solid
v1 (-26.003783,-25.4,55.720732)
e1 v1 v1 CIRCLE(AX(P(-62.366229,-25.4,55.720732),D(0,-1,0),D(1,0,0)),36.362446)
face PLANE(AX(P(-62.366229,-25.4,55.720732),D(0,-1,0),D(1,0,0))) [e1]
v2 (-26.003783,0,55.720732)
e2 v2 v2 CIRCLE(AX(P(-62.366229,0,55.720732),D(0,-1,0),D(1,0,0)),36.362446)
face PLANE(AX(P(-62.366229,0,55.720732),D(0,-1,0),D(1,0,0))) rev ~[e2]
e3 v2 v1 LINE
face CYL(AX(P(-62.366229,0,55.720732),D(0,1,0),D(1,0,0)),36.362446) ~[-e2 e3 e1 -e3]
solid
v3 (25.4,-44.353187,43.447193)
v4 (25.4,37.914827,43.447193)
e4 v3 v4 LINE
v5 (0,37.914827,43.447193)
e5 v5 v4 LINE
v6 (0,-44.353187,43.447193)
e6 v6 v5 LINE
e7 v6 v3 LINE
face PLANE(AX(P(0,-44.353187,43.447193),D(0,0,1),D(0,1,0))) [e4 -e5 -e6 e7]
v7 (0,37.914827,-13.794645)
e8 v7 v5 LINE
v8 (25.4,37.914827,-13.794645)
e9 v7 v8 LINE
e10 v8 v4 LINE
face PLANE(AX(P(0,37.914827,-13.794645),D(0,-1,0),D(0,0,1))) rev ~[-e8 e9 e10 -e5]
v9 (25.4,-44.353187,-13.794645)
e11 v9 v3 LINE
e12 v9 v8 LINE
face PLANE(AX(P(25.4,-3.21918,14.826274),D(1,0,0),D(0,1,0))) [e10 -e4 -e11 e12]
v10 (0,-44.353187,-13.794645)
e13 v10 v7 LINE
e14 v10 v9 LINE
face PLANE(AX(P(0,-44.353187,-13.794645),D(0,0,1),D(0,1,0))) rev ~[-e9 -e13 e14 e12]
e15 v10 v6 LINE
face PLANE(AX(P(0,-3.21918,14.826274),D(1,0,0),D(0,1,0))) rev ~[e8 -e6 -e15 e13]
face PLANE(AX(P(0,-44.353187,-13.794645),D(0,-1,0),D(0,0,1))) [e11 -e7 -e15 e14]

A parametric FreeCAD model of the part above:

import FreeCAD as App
import Part
import Sketcher

V = App.Vector
Q = App.Units.Quantity


def add_polygon(sketch, points):
    """Adds a closed chain of lines whose ends are joined by coincident constraints."""
    first, n = sketch.GeometryCount, len(points)
    for a, b in zip(points, points[1:] + points[:1]):
        sketch.addGeometry(Part.LineSegment(App.Vector(*a, 0), App.Vector(*b, 0)), False)
    for i in range(n):
        sketch.addConstraint(Sketcher.Constraint("Coincident", first + i, 2, first + (i + 1) % n, 1))

doc = App.newDocument("Part")
body = doc.addObject("PartDesign::Body", "Body")

# Sketch on YZ plane
sketch1 = doc.addObject("Sketcher::SketchObject", "Sketch")
body.addObject(sketch1)
sketch1.AttachmentSupport = (doc.YZ_Plane, [""])
sketch1.MapMode = "FlatFace"
add_polygon(sketch1, [(-44, 43), (-44, -14), (38, -14), (38, 43)])  # lines 0-3
sketch1.addConstraint(Sketcher.Constraint("Vertical", 0))
sketch1.addConstraint(Sketcher.Constraint("Horizontal", 1))
sketch1.addConstraint(Sketcher.Constraint("Vertical", 2))
sketch1.addConstraint(Sketcher.Constraint("Horizontal", 3))
sketch1.addConstraint(Sketcher.Constraint("DistanceX", 1, 1, 1, 2, 82.268014))
sketch1.addConstraint(Sketcher.Constraint("DistanceY", 0, 2, 0, 1, 57.241838))
sketch1.addConstraint(Sketcher.Constraint("DistanceX", 0, 2, -1, 1, 44.353187))
sketch1.addConstraint(Sketcher.Constraint("DistanceY", 0, 2, -1, 1, 13.794645))
pad1 = doc.addObject("PartDesign::Pad", "Pad")
body.addObject(pad1)
pad1.Profile = sketch1
pad1.Length = Q("1 in")
body2 = doc.addObject("PartDesign::Body", "Body001")

# Sketch on XZ plane
sketch2 = doc.addObject("Sketcher::SketchObject", "Sketch001")
body2.addObject(sketch2)
sketch2.AttachmentSupport = (doc.getObject("XZ_Plane001"), [""])
sketch2.MapMode = "FlatFace"
sketch2.addGeometry(Part.Circle(V(-62, 56, 0), V(0, 0, 1), 36), False)
sketch2.addConstraint(Sketcher.Constraint("Diameter", 0, 72.724892))
sketch2.addConstraint(Sketcher.Constraint("DistanceX", 0, 3, -1, 1, 62.366229))
sketch2.addConstraint(Sketcher.Constraint("DistanceY", -1, 1, 0, 3, 55.720732))
pad2 = doc.addObject("PartDesign::Pad", "Pad001")
body2.addObject(pad2)
pad2.Profile = sketch2
pad2.Length = Q("1 in")

doc.recompute()
